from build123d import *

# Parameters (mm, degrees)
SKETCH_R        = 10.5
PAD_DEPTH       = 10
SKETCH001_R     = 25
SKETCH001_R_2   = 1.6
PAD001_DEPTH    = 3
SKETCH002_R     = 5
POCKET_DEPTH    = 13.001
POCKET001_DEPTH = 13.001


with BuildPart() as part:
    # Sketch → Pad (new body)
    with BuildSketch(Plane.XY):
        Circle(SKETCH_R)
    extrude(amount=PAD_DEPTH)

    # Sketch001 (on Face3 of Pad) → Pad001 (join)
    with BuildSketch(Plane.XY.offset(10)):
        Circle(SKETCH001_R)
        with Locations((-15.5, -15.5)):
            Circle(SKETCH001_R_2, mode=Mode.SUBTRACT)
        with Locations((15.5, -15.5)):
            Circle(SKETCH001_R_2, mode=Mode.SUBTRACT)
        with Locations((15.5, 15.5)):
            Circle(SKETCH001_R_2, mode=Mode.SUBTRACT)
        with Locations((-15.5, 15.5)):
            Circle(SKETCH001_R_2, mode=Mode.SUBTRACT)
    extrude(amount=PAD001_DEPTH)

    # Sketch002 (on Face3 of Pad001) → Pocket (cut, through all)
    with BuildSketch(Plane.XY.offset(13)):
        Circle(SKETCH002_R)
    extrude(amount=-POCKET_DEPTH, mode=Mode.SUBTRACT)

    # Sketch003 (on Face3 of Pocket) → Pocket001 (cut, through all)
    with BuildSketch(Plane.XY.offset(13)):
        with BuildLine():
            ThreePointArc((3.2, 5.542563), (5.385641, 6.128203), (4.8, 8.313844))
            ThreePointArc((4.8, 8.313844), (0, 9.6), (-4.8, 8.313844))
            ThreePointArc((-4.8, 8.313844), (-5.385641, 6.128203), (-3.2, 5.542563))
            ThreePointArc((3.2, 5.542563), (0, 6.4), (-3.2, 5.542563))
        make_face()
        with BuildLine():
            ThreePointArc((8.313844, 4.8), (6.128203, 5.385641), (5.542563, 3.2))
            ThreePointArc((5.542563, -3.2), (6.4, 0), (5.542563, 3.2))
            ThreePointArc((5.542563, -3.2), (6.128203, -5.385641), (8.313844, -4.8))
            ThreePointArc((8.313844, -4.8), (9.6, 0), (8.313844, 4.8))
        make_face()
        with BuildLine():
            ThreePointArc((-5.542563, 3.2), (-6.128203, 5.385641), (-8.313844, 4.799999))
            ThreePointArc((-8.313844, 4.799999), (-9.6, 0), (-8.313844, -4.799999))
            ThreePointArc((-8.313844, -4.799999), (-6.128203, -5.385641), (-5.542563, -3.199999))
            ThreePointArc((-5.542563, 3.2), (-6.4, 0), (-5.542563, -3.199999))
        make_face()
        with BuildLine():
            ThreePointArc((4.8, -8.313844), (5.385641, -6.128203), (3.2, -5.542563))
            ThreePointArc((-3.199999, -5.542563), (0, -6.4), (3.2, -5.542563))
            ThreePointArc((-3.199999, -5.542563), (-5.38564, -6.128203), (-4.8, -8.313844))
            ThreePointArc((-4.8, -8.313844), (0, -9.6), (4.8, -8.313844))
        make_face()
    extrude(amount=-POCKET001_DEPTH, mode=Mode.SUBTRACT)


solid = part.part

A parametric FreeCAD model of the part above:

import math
import FreeCAD as App
import Part
import Sketcher

doc = App.newDocument("Part")
body = doc.addObject("PartDesign::Body", "Body")

# Sketch on XY plane
sketch1 = doc.addObject("Sketcher::SketchObject", "Sketch")
body.addObject(sketch1)
sketch1.AttachmentSupport = (doc.XY_Plane, [""])
sketch1.MapMode = "FlatFace"
sketch1.addGeometry(Part.Circle(App.Vector(0, 0, 0), App.Vector(0, 0, 1), 10), False)
sketch1.addConstraint(Sketcher.Constraint("Coincident", 0, 3, -1, 1))
sketch1.addConstraint(Sketcher.Constraint("Diameter", 0, 21.0))
pad1 = doc.addObject("PartDesign::Pad", "Pad")
body.addObject(pad1)
pad1.Profile = sketch1
pad1.Length = 10

# Sketch on XY plane
sketch2 = doc.addObject("Sketcher::SketchObject", "Sketch001")
body.addObject(sketch2)
sketch2.AttachmentSupport = (doc.XY_Plane, [""])
sketch2.MapMode = "FlatFace"
sketch2.AttachmentOffset = App.Placement(App.Vector(0, 0, 10), App.Rotation())
sketch2.addGeometry(Part.Circle(App.Vector(0, 0, 0), App.Vector(0, 0, 1), 25), False)
sketch2.addGeometry(Part.Circle(App.Vector(-15.5, -15.5, 0), App.Vector(0, 0, 1), 1.6), False)
sketch2.addGeometry(Part.Circle(App.Vector(15.5, -15.5, 0), App.Vector(0, 0, 1), 1.6), False)
sketch2.addGeometry(Part.Circle(App.Vector(-15.5, 15.5, 0), App.Vector(0, 0, 1), 1.6), False)
sketch2.addGeometry(Part.Circle(App.Vector(15.5, 15.5, 0), App.Vector(0, 0, 1), 1.6), False)
sketch2.addConstraint(Sketcher.Constraint("Coincident", 0, 3, -1, 1))
sketch2.addConstraint(Sketcher.Constraint("Equal", 1, 2))
sketch2.addConstraint(Sketcher.Constraint("Equal", 2, 3))
sketch2.addConstraint(Sketcher.Constraint("Equal", 3, 4))
sketch2.addConstraint(Sketcher.Constraint("Symmetric", 2, 3, 3, 3, -1, 1))
sketch2.addConstraint(Sketcher.Constraint("Symmetric", 1, 3, 4, 3, -1, 1))
sketch2.addConstraint(Sketcher.Constraint("Symmetric", 1, 3, 2, 3, -2))
sketch2.addConstraint(Sketcher.Constraint("Diameter", 0, 50.0))
sketch2.addConstraint(Sketcher.Constraint("Diameter", 1, 3.2))
sketch2.addConstraint(Sketcher.Constraint("DistanceX", 1, 3, 2, 3, 31.0))
sketch2.addConstraint(Sketcher.Constraint("DistanceY", 1, 3, 3, 3, 31.0))
pad2 = doc.addObject("PartDesign::Pad", "Pad001")
body.addObject(pad2)
pad2.Profile = sketch2
pad2.Length = 3

# Sketch on XY plane
sketch3 = doc.addObject("Sketcher::SketchObject", "Sketch002")
body.addObject(sketch3)
sketch3.AttachmentSupport = (doc.XY_Plane, [""])
sketch3.MapMode = "FlatFace"
sketch3.AttachmentOffset = App.Placement(App.Vector(0, 0, 13), App.Rotation())
sketch3.addGeometry(Part.Circle(App.Vector(0, 0, 0), App.Vector(0, 0, 1), 5), False)
sketch3.addConstraint(Sketcher.Constraint("Coincident", 0, 3, -1, 1))
sketch3.addConstraint(Sketcher.Constraint("Diameter", 0, 10.0))
pocket1 = doc.addObject("PartDesign::Pocket", "Pocket")
body.addObject(pocket1)
pocket1.Profile = sketch3
pocket1.Type = "ThroughAll"

# Sketch on XY plane
sketch4 = doc.addObject("Sketcher::SketchObject", "Sketch003")
body.addObject(sketch4)
sketch4.AttachmentSupport = (doc.XY_Plane, [""])
sketch4.MapMode = "FlatFace"
sketch4.AttachmentOffset = App.Placement(App.Vector(0, 0, 13), App.Rotation())
sketch4.addGeometry(Part.ArcOfCircle(Part.Circle(App.Vector(4, 6.9, 0), App.Vector(0, 0, 1), 1.6), math.radians(-120), math.radians(60)), False)
sketch4.addGeometry(Part.ArcOfCircle(Part.Circle(App.Vector(0, 0, 0), App.Vector(0, 0, 1), 9.6), math.radians(60), math.radians(120)), False)
sketch4.addGeometry(Part.ArcOfCircle(Part.Circle(App.Vector(-4, 6.9, 0), App.Vector(0, 0, 1), 1.6), math.radians(120), math.radians(300)), False)
sketch4.addGeometry(Part.ArcOfCircle(Part.Circle(App.Vector(0, 0, 0), App.Vector(0, 0, 1), 6.4), math.radians(60), math.radians(120)), False)
sketch4.addGeometry(Part.ArcOfCircle(Part.Circle(App.Vector(6.9, 4, 0), App.Vector(0, 0, 1), 1.6), math.radians(30), math.radians(210)), False)
sketch4.addGeometry(Part.ArcOfCircle(Part.Circle(App.Vector(0, 0, 0), App.Vector(0, 0, 1), 6.4), math.radians(-30), math.radians(30)), False)
sketch4.addGeometry(Part.ArcOfCircle(Part.Circle(App.Vector(6.9, -4, 0), App.Vector(0, 0, 1), 1.6), math.radians(150), math.radians(330)), False)
sketch4.addGeometry(Part.ArcOfCircle(Part.Circle(App.Vector(0, 0, 0), App.Vector(0, 0, 1), 9.6), math.radians(-30), math.radians(30)), False)
sketch4.addGeometry(Part.ArcOfCircle(Part.Circle(App.Vector(-6.9, 4, 0), App.Vector(0, 0, 1), 1.6), math.radians(-30), math.radians(150)), False)
sketch4.addGeometry(Part.ArcOfCircle(Part.Circle(App.Vector(0, 0, 0), App.Vector(0, 0, 1), 9.6), math.radians(150), math.radians(210)), False)
sketch4.addGeometry(Part.ArcOfCircle(Part.Circle(App.Vector(-6.9, -4, 0), App.Vector(0, 0, 1), 1.6), math.radians(-150), math.radians(30)), False)
sketch4.addGeometry(Part.ArcOfCircle(Part.Circle(App.Vector(0, 0, 0), App.Vector(0, 0, 1), 6.4), math.radians(150), math.radians(210)), False)
sketch4.addGeometry(Part.ArcOfCircle(Part.Circle(App.Vector(4, -6.9, 0), App.Vector(0, 0, 1), 1.6), math.radians(-60), math.radians(120)), False)
sketch4.addGeometry(Part.ArcOfCircle(Part.Circle(App.Vector(0, 0, 0), App.Vector(0, 0, 1), 6.4), math.radians(-120), math.radians(-60)), False)
sketch4.addGeometry(Part.ArcOfCircle(Part.Circle(App.Vector(-4, -6.9, 0), App.Vector(0, 0, 1), 1.6), math.radians(60), math.radians(240)), False)
sketch4.addGeometry(Part.ArcOfCircle(Part.Circle(App.Vector(0, 0, 0), App.Vector(0, 0, 1), 9.6), math.radians(-120), math.radians(-60)), False)
sketch4.addConstraint(Sketcher.Constraint("Tangent", 0, 2, 1, 1))
sketch4.addConstraint(Sketcher.Constraint("Tangent", 1, 2, 2, 1))
sketch4.addConstraint(Sketcher.Constraint("Tangent", 2, 2, 3, 2))
sketch4.addConstraint(Sketcher.Constraint("Tangent", 3, 1, 0, 1))
sketch4.addConstraint(Sketcher.Constraint("Tangent", 4, 2, 5, 2))
sketch4.addConstraint(Sketcher.Constraint("Tangent", 5, 1, 6, 1))
sketch4.addConstraint(Sketcher.Constraint("Tangent", 6, 2, 7, 1))
sketch4.addConstraint(Sketcher.Constraint("Tangent", 7, 2, 4, 1))
sketch4.addConstraint(Sketcher.Constraint("Tangent", 8, 2, 9, 1))
sketch4.addConstraint(Sketcher.Constraint("Tangent", 9, 2, 10, 1))
sketch4.addConstraint(Sketcher.Constraint("Tangent", 10, 2, 11, 2))
sketch4.addConstraint(Sketcher.Constraint("Tangent", 11, 1, 8, 1))
sketch4.addConstraint(Sketcher.Constraint("Tangent", 12, 2, 13, 2))
sketch4.addConstraint(Sketcher.Constraint("Tangent", 13, 1, 14, 1))
sketch4.addConstraint(Sketcher.Constraint("Tangent", 14, 2, 15, 1))
sketch4.addConstraint(Sketcher.Constraint("Tangent", 15, 2, 12, 1))
sketch4.addConstraint(Sketcher.Constraint("Coincident", 1, 3, -1, 1))
sketch4.addConstraint(Sketcher.Constraint("Coincident", 3, 3, -1, 1))
sketch4.addConstraint(Sketcher.Constraint("Coincident", 5, 3, -1, 1))
sketch4.addConstraint(Sketcher.Constraint("Coincident", 7, 3, -1, 1))
sketch4.addConstraint(Sketcher.Constraint("Coincident", 9, 3, -1, 1))
sketch4.addConstraint(Sketcher.Constraint("Coincident", 11, 3, -1, 1))
sketch4.addConstraint(Sketcher.Constraint("Coincident", 13, 3, -1, 1))
sketch4.addConstraint(Sketcher.Constraint("Coincident", 15, 3, -1, 1))
sketch4.addConstraint(Sketcher.Constraint("Equal", 2, 4))
sketch4.addConstraint(Sketcher.Constraint("Equal", 3, 5))
sketch4.addConstraint(Sketcher.Constraint("Equal", 6, 8))
sketch4.addConstraint(Sketcher.Constraint("Equal", 5, 11))
sketch4.addConstraint(Sketcher.Constraint("Equal", 10, 12))
sketch4.addConstraint(Sketcher.Constraint("Equal", 11, 13))
sketch4.addConstraint(Sketcher.Constraint("Horizontal", 0, 3, 2, 3))
sketch4.addConstraint(Sketcher.Constraint("Horizontal", 4, 3, 8, 3))
sketch4.addConstraint(Sketcher.Constraint("Horizontal", 6, 3, 10, 3))
sketch4.addConstraint(Sketcher.Constraint("Horizontal", 12, 3, 14, 3))
sketch4.addConstraint(Sketcher.Constraint("Vertical", 4, 3, 6, 3))
sketch4.addConstraint(Sketcher.Constraint("Vertical", 0, 3, 12, 3))
sketch4.addConstraint(Sketcher.Constraint("Radius", 0, 1.6))
sketch4.addConstraint(Sketcher.Constraint("Radius", 1, 9.600001))
sketch4.addConstraint(Sketcher.Constraint("DistanceX", -1, 1, 0, 3, 4.000001))
sketch4.addConstraint(Sketcher.Constraint("DistanceY", -1, 1, 4, 3, 4.000001))
pocket2 = doc.addObject("PartDesign::Pocket", "Pocket001")
body.addObject(pocket2)
pocket2.Profile = sketch4
pocket2.Type = "ThroughAll"

doc.recompute()
